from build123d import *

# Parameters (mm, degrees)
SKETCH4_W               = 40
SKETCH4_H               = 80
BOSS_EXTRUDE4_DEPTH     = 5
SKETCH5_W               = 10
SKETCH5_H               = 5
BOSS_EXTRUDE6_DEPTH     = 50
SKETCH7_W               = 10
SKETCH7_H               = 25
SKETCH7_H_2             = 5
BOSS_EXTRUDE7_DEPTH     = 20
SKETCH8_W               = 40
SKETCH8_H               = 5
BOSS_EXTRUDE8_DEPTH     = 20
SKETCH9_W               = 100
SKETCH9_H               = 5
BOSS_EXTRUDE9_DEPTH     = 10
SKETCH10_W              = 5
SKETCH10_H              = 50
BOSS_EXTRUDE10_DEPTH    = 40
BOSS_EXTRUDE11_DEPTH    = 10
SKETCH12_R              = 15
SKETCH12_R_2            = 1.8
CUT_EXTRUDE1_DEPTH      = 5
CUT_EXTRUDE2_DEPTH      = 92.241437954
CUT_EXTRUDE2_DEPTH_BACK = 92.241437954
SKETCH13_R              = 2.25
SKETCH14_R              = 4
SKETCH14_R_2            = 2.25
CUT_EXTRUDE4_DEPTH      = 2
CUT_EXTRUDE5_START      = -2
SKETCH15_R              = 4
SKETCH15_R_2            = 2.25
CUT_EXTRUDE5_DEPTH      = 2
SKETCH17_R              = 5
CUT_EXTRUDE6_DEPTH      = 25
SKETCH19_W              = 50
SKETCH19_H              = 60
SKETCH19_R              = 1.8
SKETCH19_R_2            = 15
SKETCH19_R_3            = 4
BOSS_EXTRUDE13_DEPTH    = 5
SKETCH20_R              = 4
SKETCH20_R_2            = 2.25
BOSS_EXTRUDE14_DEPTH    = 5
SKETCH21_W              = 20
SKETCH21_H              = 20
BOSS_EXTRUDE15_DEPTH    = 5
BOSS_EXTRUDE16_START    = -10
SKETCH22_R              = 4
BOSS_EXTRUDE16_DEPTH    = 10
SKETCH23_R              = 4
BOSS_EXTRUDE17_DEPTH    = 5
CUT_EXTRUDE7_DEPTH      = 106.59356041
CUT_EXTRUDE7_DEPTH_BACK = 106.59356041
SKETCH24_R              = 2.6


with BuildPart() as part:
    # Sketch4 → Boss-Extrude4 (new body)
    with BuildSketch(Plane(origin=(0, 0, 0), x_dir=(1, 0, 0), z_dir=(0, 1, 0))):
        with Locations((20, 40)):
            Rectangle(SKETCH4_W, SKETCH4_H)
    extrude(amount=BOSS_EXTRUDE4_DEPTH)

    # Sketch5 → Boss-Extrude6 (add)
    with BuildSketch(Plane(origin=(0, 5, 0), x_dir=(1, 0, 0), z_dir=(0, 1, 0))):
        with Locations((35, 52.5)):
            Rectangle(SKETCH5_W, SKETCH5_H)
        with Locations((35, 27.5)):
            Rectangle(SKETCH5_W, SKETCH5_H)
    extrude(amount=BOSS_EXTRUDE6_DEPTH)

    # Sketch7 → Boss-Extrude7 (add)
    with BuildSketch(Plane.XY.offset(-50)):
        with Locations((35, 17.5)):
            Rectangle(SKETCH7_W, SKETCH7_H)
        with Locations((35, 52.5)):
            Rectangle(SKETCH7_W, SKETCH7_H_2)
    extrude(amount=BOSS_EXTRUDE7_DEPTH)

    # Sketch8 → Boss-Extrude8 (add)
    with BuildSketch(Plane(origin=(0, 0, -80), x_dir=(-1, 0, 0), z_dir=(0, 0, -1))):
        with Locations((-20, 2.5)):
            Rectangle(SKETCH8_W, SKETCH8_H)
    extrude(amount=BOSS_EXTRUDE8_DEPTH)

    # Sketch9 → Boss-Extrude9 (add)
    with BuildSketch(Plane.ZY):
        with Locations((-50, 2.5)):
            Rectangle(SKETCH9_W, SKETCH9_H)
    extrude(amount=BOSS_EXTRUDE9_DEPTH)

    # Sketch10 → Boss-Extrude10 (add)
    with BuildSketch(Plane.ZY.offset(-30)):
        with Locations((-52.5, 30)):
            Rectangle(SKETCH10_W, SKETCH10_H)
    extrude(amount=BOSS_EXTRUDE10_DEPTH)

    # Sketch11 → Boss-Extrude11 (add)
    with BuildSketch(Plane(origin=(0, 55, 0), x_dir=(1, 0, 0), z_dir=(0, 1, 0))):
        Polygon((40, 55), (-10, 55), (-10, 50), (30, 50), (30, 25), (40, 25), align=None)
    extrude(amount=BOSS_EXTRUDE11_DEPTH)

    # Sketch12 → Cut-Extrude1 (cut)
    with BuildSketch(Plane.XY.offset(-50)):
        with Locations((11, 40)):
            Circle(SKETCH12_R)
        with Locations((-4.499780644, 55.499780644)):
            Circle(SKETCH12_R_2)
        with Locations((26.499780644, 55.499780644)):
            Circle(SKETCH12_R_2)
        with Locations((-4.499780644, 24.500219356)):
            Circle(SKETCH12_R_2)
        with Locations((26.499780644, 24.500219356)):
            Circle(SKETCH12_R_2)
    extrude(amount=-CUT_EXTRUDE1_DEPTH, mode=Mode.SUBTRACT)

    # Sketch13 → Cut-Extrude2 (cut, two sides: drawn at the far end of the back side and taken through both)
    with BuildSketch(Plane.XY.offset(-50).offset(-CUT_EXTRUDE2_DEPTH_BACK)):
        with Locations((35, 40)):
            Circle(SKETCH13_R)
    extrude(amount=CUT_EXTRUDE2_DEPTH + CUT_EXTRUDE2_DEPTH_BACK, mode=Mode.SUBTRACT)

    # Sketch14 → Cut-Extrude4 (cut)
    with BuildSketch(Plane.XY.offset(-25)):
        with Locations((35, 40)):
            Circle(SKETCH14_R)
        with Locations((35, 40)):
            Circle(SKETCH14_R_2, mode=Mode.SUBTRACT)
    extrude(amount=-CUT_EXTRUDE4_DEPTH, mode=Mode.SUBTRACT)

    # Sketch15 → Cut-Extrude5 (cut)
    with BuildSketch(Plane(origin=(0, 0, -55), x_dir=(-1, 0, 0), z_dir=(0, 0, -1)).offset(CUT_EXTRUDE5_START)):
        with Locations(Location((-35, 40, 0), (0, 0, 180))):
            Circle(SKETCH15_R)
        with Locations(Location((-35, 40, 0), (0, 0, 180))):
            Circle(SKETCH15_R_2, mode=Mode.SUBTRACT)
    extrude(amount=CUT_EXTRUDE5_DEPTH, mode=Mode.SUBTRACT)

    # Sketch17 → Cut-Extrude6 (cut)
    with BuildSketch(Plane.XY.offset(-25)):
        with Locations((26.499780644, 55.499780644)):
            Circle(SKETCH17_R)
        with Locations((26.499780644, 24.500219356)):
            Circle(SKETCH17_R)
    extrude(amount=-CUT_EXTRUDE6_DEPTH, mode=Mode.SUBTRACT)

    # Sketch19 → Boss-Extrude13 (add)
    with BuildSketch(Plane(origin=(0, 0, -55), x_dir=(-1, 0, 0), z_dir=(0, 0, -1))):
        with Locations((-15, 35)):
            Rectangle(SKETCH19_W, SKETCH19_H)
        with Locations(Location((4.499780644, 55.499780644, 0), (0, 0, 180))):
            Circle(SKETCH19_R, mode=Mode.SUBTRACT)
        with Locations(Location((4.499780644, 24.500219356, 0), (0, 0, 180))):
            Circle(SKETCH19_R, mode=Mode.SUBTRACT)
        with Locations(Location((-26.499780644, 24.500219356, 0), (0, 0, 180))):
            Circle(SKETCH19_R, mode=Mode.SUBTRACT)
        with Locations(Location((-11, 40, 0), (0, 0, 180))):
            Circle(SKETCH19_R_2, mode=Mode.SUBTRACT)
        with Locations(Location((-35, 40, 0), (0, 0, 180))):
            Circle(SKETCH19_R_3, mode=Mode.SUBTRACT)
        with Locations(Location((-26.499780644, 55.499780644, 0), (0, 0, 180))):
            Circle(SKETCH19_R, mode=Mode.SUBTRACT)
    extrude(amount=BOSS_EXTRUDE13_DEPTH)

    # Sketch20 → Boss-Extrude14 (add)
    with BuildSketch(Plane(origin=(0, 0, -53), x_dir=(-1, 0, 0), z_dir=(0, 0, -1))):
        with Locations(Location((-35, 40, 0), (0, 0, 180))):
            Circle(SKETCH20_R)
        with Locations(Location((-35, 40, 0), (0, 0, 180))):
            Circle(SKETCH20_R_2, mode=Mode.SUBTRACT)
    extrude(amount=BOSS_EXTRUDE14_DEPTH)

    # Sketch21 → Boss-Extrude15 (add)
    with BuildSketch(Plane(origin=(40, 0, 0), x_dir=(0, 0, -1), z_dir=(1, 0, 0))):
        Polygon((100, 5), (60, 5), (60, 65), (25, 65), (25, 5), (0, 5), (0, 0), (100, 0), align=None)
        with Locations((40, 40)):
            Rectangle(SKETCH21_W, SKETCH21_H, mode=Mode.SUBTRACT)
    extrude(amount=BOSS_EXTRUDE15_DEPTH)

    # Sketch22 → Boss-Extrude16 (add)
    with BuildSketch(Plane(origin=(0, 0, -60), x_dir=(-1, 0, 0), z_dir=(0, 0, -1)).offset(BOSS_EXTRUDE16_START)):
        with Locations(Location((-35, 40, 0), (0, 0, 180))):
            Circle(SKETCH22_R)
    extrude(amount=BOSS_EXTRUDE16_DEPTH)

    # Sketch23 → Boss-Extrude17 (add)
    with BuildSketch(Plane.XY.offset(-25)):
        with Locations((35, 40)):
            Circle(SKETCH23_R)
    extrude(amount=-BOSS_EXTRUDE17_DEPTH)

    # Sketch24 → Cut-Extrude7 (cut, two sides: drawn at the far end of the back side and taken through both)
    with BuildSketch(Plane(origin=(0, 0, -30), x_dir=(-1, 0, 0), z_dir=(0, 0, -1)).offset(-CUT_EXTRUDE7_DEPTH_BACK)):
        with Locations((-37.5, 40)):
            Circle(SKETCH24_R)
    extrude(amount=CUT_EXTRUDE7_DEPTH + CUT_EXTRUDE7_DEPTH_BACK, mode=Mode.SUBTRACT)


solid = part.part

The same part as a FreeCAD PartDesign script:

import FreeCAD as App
import Part
import Sketcher

V = App.Vector
Q = App.Units.Quantity


def add_polygon(sketch, points):
    """Adds a closed chain of lines whose ends are joined by coincident constraints."""
    first, n = sketch.GeometryCount, len(points)
    for a, b in zip(points, points[1:] + points[:1]):
        sketch.addGeometry(Part.LineSegment(App.Vector(*a, 0), App.Vector(*b, 0)), False)
    for i in range(n):
        sketch.addConstraint(Sketcher.Constraint("Coincident", first + i, 2, first + (i + 1) % n, 1))

doc = App.newDocument("Part")
body = doc.addObject("PartDesign::Body", "Body")

# Sketch on XZ plane
sketch1 = doc.addObject("Sketcher::SketchObject", "Sketch")
body.addObject(sketch1)
sketch1.AttachmentSupport = (doc.XZ_Plane, [""])
sketch1.MapMode = "FlatFace"
add_polygon(sketch1, [(0, -80), (0, 0), (40, 0), (40, -80)])  # lines 0-3
sketch1.addConstraint([
    Sketcher.Constraint("Vertical", 0),
    Sketcher.Constraint("Horizontal", 1),
    Sketcher.Constraint("Vertical", 2),
    Sketcher.Constraint("Horizontal", 3),
    Sketcher.Constraint("Coincident", 0, 2, -1, 1),
    Sketcher.Constraint("DistanceX", 1, 1, 1, 2, Q("40 mm")),
    Sketcher.Constraint("DistanceY", 0, 1, 0, 2, Q("80 mm")),
])
pad1 = doc.addObject("PartDesign::Pad", "Pad")
body.addObject(pad1)
pad1.Profile = sketch1
pad1.Length = 5
pad1.Reversed = True

# Sketch on XZ plane
sketch2 = doc.addObject("Sketcher::SketchObject", "Sketch001")
body.addObject(sketch2)
sketch2.AttachmentSupport = (doc.XZ_Plane, [""])
sketch2.MapMode = "FlatFace"
sketch2.AttachmentOffset = App.Placement(V(0, 0, -5), App.Rotation())
add_polygon(sketch2, [(30, -55), (30, -50), (40, -50), (40, -55)])  # lines 0-3
add_polygon(sketch2, [(30, -30), (30, -25), (40, -25), (40, -30)])  # lines 4-7
sketch2.addConstraint([
    Sketcher.Constraint("Vertical", 0),
    Sketcher.Constraint("Horizontal", 1),
    Sketcher.Constraint("Vertical", 2),
    Sketcher.Constraint("Horizontal", 3),
    Sketcher.Constraint("Vertical", 4),
    Sketcher.Constraint("Horizontal", 5),
    Sketcher.Constraint("Vertical", 6),
    Sketcher.Constraint("Horizontal", 7),
    Sketcher.Constraint("Vertical", 3, 2, 4, 2),
    Sketcher.Constraint("Vertical", 2, 2, 5, 2),
    Sketcher.Constraint("Equal", 2, 4),
    Sketcher.Constraint("DistanceX", 1, 1, 1, 2, Q("10 mm")),
    Sketcher.Constraint("DistanceY", 0, 1, 0, 2, Q("5 mm")),
    Sketcher.Constraint("DistanceX", -1, 1, 0, 2, Q("30 mm")),
    Sketcher.Constraint("DistanceY", 0, 2, -1, 1, Q("50 mm")),
    Sketcher.Constraint("DistanceY", 4, 2, -1, 1, Q("25 mm")),
])
pad2 = doc.addObject("PartDesign::Pad", "Pad001")
body.addObject(pad2)
pad2.Profile = sketch2
pad2.Length = 50
pad2.Reversed = True

# Sketch on XY plane
sketch3 = doc.addObject("Sketcher::SketchObject", "Sketch002")
body.addObject(sketch3)
sketch3.AttachmentSupport = (doc.XY_Plane, [""])
sketch3.MapMode = "FlatFace"
sketch3.AttachmentOffset = App.Placement(V(0, 0, -50), App.Rotation())
add_polygon(sketch3, [(30, 30), (30, 5), (40, 5), (40, 30)])  # lines 0-3
add_polygon(sketch3, [(30, 55), (30, 50), (40, 50), (40, 55)])  # lines 4-7
sketch3.addConstraint([
    Sketcher.Constraint("Vertical", 0),
    Sketcher.Constraint("Horizontal", 1),
    Sketcher.Constraint("Vertical", 2),
    Sketcher.Constraint("Horizontal", 3),
    Sketcher.Constraint("Vertical", 4),
    Sketcher.Constraint("Horizontal", 5),
    Sketcher.Constraint("Vertical", 6),
    Sketcher.Constraint("Horizontal", 7),
    Sketcher.Constraint("Vertical", 3, 2, 4, 2),
    Sketcher.Constraint("Vertical", 2, 2, 5, 2),
    Sketcher.Constraint("DistanceX", 1, 1, 1, 2, Q("10 mm")),
    Sketcher.Constraint("DistanceY", 0, 2, 0, 1, Q("25 mm")),
    Sketcher.Constraint("DistanceY", 4, 2, 4, 1, Q("5 mm")),
    Sketcher.Constraint("DistanceX", -1, 1, 0, 2, Q("30 mm")),
    Sketcher.Constraint("DistanceY", -1, 1, 0, 2, Q("5 mm")),
    Sketcher.Constraint("DistanceY", -1, 1, 4, 2, Q("50 mm")),
])
pad3 = doc.addObject("PartDesign::Pad", "Pad002")
body.addObject(pad3)
pad3.Profile = sketch3
pad3.Length = 20

# Sketch on XY plane
sketch4 = doc.addObject("Sketcher::SketchObject", "Sketch003")
body.addObject(sketch4)
sketch4.AttachmentSupport = (doc.XY_Plane, [""])
sketch4.MapMode = "FlatFace"
sketch4.AttachmentOffset = App.Placement(V(0, 0, -80), App.Rotation())
add_polygon(sketch4, [(40, 5), (40, 0), (0, 0), (0, 5)])  # lines 0-3
sketch4.addConstraint([
    Sketcher.Constraint("Vertical", 0),
    Sketcher.Constraint("Horizontal", 1),
    Sketcher.Constraint("Vertical", 2),
    Sketcher.Constraint("Horizontal", 3),
    Sketcher.Constraint("Coincident", 1, 2, -1, 1),
    Sketcher.Constraint("DistanceX", 1, 2, 1, 1, Q("40 mm")),
    Sketcher.Constraint("DistanceY", 0, 2, 0, 1, Q("5 mm")),
])
pad4 = doc.addObject("PartDesign::Pad", "Pad003")
body.addObject(pad4)
pad4.Profile = sketch4
pad4.Length = 20
pad4.Reversed = True

# Sketch on YZ plane
sketch5 = doc.addObject("Sketcher::SketchObject", "Sketch004")
body.addObject(sketch5)
sketch5.AttachmentSupport = (doc.YZ_Plane, [""])
sketch5.MapMode = "FlatFace"
add_polygon(sketch5, [(5, -100), (0, -100), (0, 0), (5, 0)])  # lines 0-3
sketch5.addConstraint([
    Sketcher.Constraint("Horizontal", 0),
    Sketcher.Constraint("Vertical", 1),
    Sketcher.Constraint("Horizontal", 2),
    Sketcher.Constraint("Vertical", 3),
    Sketcher.Constraint("Coincident", 1, 2, -1, 1),
    Sketcher.Constraint("DistanceX", 0, 2, 0, 1, Q("5 mm")),
    Sketcher.Constraint("DistanceY", 1, 1, 1, 2, Q("100 mm")),
])
pad5 = doc.addObject("PartDesign::Pad", "Pad004")
body.addObject(pad5)
pad5.Profile = sketch5
pad5.Length = 10
pad5.Reversed = True

# Sketch on YZ plane
sketch6 = doc.addObject("Sketcher::SketchObject", "Sketch005")
body.addObject(sketch6)
sketch6.AttachmentSupport = (doc.YZ_Plane, [""])
sketch6.MapMode = "FlatFace"
sketch6.AttachmentOffset = App.Placement(V(0, 0, 30), App.Rotation())
add_polygon(sketch6, [(55, -55), (5, -55), (5, -50), (55, -50)])  # lines 0-3
sketch6.addConstraint([
    Sketcher.Constraint("Horizontal", 0),
    Sketcher.Constraint("Vertical", 1),
    Sketcher.Constraint("Horizontal", 2),
    Sketcher.Constraint("Vertical", 3),
    Sketcher.Constraint("DistanceX", 0, 2, 0, 1, Q("50 mm")),
    Sketcher.Constraint("DistanceY", 1, 1, 1, 2, Q("5 mm")),
    Sketcher.Constraint("DistanceX", -1, 1, 0, 2, Q("5 mm")),
    Sketcher.Constraint("DistanceY", 0, 2, -1, 1, Q("55 mm")),
])
pad6 = doc.addObject("PartDesign::Pad", "Pad005")
body.addObject(pad6)
pad6.Profile = sketch6
pad6.Length = 40
pad6.Reversed = True

# Sketch on XZ plane
sketch7 = doc.addObject("Sketcher::SketchObject", "Sketch006")
body.addObject(sketch7)
sketch7.AttachmentSupport = (doc.XZ_Plane, [""])
sketch7.MapMode = "FlatFace"
sketch7.AttachmentOffset = App.Placement(V(0, 0, -55), App.Rotation())
add_polygon(sketch7, [(40, -55), (-10, -55), (-10, -50), (30, -50), (30, -25), (40, -25)])  # lines 0-5
sketch7.addConstraint([
    Sketcher.Constraint("Horizontal", 0),
    Sketcher.Constraint("Vertical", 1),
    Sketcher.Constraint("Horizontal", 2),
    Sketcher.Constraint("Vertical", 3),
    Sketcher.Constraint("Horizontal", 4),
    Sketcher.Constraint("Vertical", 5),
    Sketcher.Constraint("DistanceX", 0, 2, 0, 1, Q("50 mm")),
    Sketcher.Constraint("DistanceX", 2, 1, 2, 2, Q("40 mm")),
    Sketcher.Constraint("DistanceY", 1, 1, 1, 2, Q("5 mm")),
    Sketcher.Constraint("DistanceY", 3, 1, 3, 2, Q("25 mm")),
    Sketcher.Constraint("DistanceX", 0, 2, -1, 1, Q("10 mm")),
    Sketcher.Constraint("DistanceY", 0, 2, -1, 1, Q("55 mm")),
])
pad7 = doc.addObject("PartDesign::Pad", "Pad006")
body.addObject(pad7)
pad7.Profile = sketch7
pad7.Length = 10
pad7.Reversed = True

# Sketch on XY plane
sketch8 = doc.addObject("Sketcher::SketchObject", "Sketch007")
body.addObject(sketch8)
sketch8.AttachmentSupport = (doc.XY_Plane, [""])
sketch8.MapMode = "FlatFace"
sketch8.AttachmentOffset = App.Placement(V(0, 0, -50), App.Rotation())
sketch8.addGeometry([
    Part.Circle(V(11, 40, 0), V(0, 0, 1), 15),  # 0
    Part.Circle(V(-4.499781, 55.499781, 0), V(0, 0, 1), 1.8),  # 1
    Part.Circle(V(26.499781, 55.499781, 0), V(0, 0, 1), 1.8),  # 2
    Part.Circle(V(-4.499781, 24.500219, 0), V(0, 0, 1), 1.8),  # 3
    Part.Circle(V(26.499781, 24.500219, 0), V(0, 0, 1), 1.8),  # 4
], False)
sketch8.addConstraint([
    Sketcher.Constraint("Equal", 1, 2),
    Sketcher.Constraint("Equal", 2, 3),
    Sketcher.Constraint("Equal", 3, 4),
    Sketcher.Constraint("Horizontal", 1, 3, 2, 3),
    Sketcher.Constraint("Horizontal", 3, 3, 4, 3),
    Sketcher.Constraint("Vertical", 1, 3, 3, 3),
    Sketcher.Constraint("Vertical", 2, 3, 4, 3),
    Sketcher.Constraint("Diameter", 0, Q("30 mm")),
    Sketcher.Constraint("Diameter", 1, Q("3.6 mm")),
    Sketcher.Constraint("DistanceX", -1, 1, 0, 3, Q("11 mm")),
    Sketcher.Constraint("DistanceY", -1, 1, 0, 3, Q("40 mm")),
    Sketcher.Constraint("DistanceX", 1, 3, -1, 1, Q("4.499781 mm")),
    Sketcher.Constraint("DistanceY", -1, 1, 1, 3, Q("55.499781 mm")),
    Sketcher.Constraint("DistanceX", -1, 1, 2, 3, Q("26.499781 mm")),
    Sketcher.Constraint("DistanceY", -1, 1, 3, 3, Q("24.500219 mm")),
])
pocket1 = doc.addObject("PartDesign::Pocket", "Pocket")
body.addObject(pocket1)
pocket1.Profile = sketch8
pocket1.Length = 5

# Sketch on XY plane
sketch9 = doc.addObject("Sketcher::SketchObject", "Sketch008")
body.addObject(sketch9)
sketch9.AttachmentSupport = (doc.XY_Plane, [""])
sketch9.MapMode = "FlatFace"
sketch9.AttachmentOffset = App.Placement(V(0, 0, -50), App.Rotation())
sketch9.addGeometry(Part.Circle(V(35, 40, 0), V(0, 0, 1), 2.25), False)
sketch9.addConstraint([
    Sketcher.Constraint("Diameter", 0, Q("4.5 mm")),
    Sketcher.Constraint("DistanceX", -1, 1, 0, 3, Q("35 mm")),
    Sketcher.Constraint("DistanceY", -1, 1, 0, 3, Q("40 mm")),
])
pocket2 = doc.addObject("PartDesign::Pocket", "Pocket001")
body.addObject(pocket2)
pocket2.Profile = sketch9
pocket2.Type = "ThroughAll"
pocket2.Midplane = True

# Sketch on XY plane
sketch10 = doc.addObject("Sketcher::SketchObject", "Sketch009")
body.addObject(sketch10)
sketch10.AttachmentSupport = (doc.XY_Plane, [""])
sketch10.MapMode = "FlatFace"
sketch10.AttachmentOffset = App.Placement(V(0, 0, -25), App.Rotation())
sketch10.addGeometry([
    Part.Circle(V(35, 40, 0), V(0, 0, 1), 4),
    Part.Circle(V(35, 40, 0), V(0, 0, 1), 2.25),
], False)
sketch10.addConstraint([
    Sketcher.Constraint("Coincident", 1, 3, 0, 3),
    Sketcher.Constraint("Diameter", 0, Q("8 mm")),
    Sketcher.Constraint("Diameter", 1, Q("4.5 mm")),
    Sketcher.Constraint("DistanceX", -1, 1, 0, 3, Q("35 mm")),
    Sketcher.Constraint("DistanceY", -1, 1, 0, 3, Q("40 mm")),
])
pocket3 = doc.addObject("PartDesign::Pocket", "Pocket002")
body.addObject(pocket3)
pocket3.Profile = sketch10
pocket3.Length = 2

# Sketch on XY plane
sketch11 = doc.addObject("Sketcher::SketchObject", "Sketch010")
body.addObject(sketch11)
sketch11.AttachmentSupport = (doc.XY_Plane, [""])
sketch11.MapMode = "FlatFace"
sketch11.AttachmentOffset = App.Placement(V(0, 0, -53), App.Rotation())
sketch11.addGeometry([
    Part.Circle(V(35, 40, 0), V(0, 0, 1), 4),
    Part.Circle(V(35, 40, 0), V(0, 0, 1), 2.25),
], False)
sketch11.addConstraint([
    Sketcher.Constraint("Coincident", 1, 3, 0, 3),
    Sketcher.Constraint("Diameter", 0, Q("8 mm")),
    Sketcher.Constraint("Diameter", 1, Q("4.5 mm")),
    Sketcher.Constraint("DistanceX", -1, 1, 0, 3, Q("35 mm")),
    Sketcher.Constraint("DistanceY", -1, 1, 0, 3, Q("40 mm")),
])
pocket4 = doc.addObject("PartDesign::Pocket", "Pocket003")
body.addObject(pocket4)
pocket4.Profile = sketch11
pocket4.Length = 2

# Sketch on XY plane
sketch12 = doc.addObject("Sketcher::SketchObject", "Sketch011")
body.addObject(sketch12)
sketch12.AttachmentSupport = (doc.XY_Plane, [""])
sketch12.MapMode = "FlatFace"
sketch12.AttachmentOffset = App.Placement(V(0, 0, -25), App.Rotation())
sketch12.addGeometry([
    Part.Circle(V(26.499781, 55.499781, 0), V(0, 0, 1), 5),
    Part.Circle(V(26.499781, 24.500219, 0), V(0, 0, 1), 5),
], False)
sketch12.addConstraint([
    Sketcher.Constraint("Equal", 0, 1),
    Sketcher.Constraint("Vertical", 0, 3, 1, 3),
    Sketcher.Constraint("Diameter", 0, Q("10 mm")),
    Sketcher.Constraint("DistanceX", -1, 1, 0, 3, Q("26.499781 mm")),
    Sketcher.Constraint("DistanceY", -1, 1, 0, 3, Q("55.499781 mm")),
    Sketcher.Constraint("DistanceY", -1, 1, 1, 3, Q("24.500219 mm")),
])
pocket5 = doc.addObject("PartDesign::Pocket", "Pocket004")
body.addObject(pocket5)
pocket5.Profile = sketch12
pocket5.Length = 25

# Sketch on XY plane
sketch13 = doc.addObject("Sketcher::SketchObject", "Sketch012")
body.addObject(sketch13)
sketch13.AttachmentSupport = (doc.XY_Plane, [""])
sketch13.MapMode = "FlatFace"
sketch13.AttachmentOffset = App.Placement(V(0, 0, -55), App.Rotation())
add_polygon(sketch13, [(40, 65), (40, 5), (-10, 5), (-10, 65)])  # lines 0-3
sketch13.addGeometry(Part.Circle(V(26.499781, 24.500219, 0), V(0, 0, 1), 1.8), False)  # 4
sketch13.addGeometry(Part.Circle(V(-4.499781, 24.500219, 0), V(0, 0, 1), 1.8), False)  # 5
sketch13.addGeometry(Part.Circle(V(35, 40, 0), V(0, 0, 1), 4), False)  # 6
sketch13.addGeometry(Part.Circle(V(26.499781, 55.499781, 0), V(0, 0, 1), 1.8), False)  # 7
sketch13.addGeometry(Part.Circle(V(11, 40, 0), V(0, 0, 1), 15), False)  # 8
sketch13.addGeometry(Part.Circle(V(-4.499781, 55.499781, 0), V(0, 0, 1), 1.8), False)  # 9
sketch13.addConstraint([
    Sketcher.Constraint("Vertical", 0),
    Sketcher.Constraint("Horizontal", 1),
    Sketcher.Constraint("Vertical", 2),
    Sketcher.Constraint("Horizontal", 3),
    Sketcher.Constraint("Equal", 4, 5),
    Sketcher.Constraint("Equal", 5, 7),
    Sketcher.Constraint("Equal", 7, 9),
    Sketcher.Constraint("Horizontal", 4, 3, 5, 3),
    Sketcher.Constraint("Horizontal", 6, 3, 8, 3),
    Sketcher.Constraint("Horizontal", 7, 3, 9, 3),
    Sketcher.Constraint("Vertical", 4, 3, 7, 3),
    Sketcher.Constraint("Vertical", 5, 3, 9, 3),
    Sketcher.Constraint("Diameter", 6, Q("8 mm")),
    Sketcher.Constraint("Diameter", 8, Q("30 mm")),
    Sketcher.Constraint("Diameter", 4, Q("3.6 mm")),
    Sketcher.Constraint("DistanceX", 1, 2, 1, 1, Q("50 mm")),
    Sketcher.Constraint("DistanceY", 0, 2, 0, 1, Q("60 mm")),
    Sketcher.Constraint("DistanceX", -1, 1, 6, 3, Q("35 mm")),
    Sketcher.Constraint("DistanceY", -1, 1, 6, 3, Q("40 mm")),
    Sketcher.Constraint("DistanceX", -1, 1, 8, 3, Q("11 mm")),
    Sketcher.Constraint("DistanceX", -1, 1, 0, 2, Q("40 mm")),
    Sketcher.Constraint("DistanceY", -1, 1, 0, 2, Q("5 mm")),
    Sketcher.Constraint("DistanceX", -1, 1, 4, 3, Q("26.499781 mm")),
    Sketcher.Constraint("DistanceY", -1, 1, 4, 3, Q("24.500219 mm")),
    Sketcher.Constraint("DistanceX", 5, 3, -1, 1, Q("4.499781 mm")),
    Sketcher.Constraint("DistanceY", -1, 1, 7, 3, Q("55.499781 mm")),
])
pad8 = doc.addObject("PartDesign::Pad", "Pad007")
body.addObject(pad8)
pad8.Profile = sketch13
pad8.Length = 5
pad8.Reversed = True

# Sketch on XY plane
sketch14 = doc.addObject("Sketcher::SketchObject", "Sketch013")
body.addObject(sketch14)
sketch14.AttachmentSupport = (doc.XY_Plane, [""])
sketch14.MapMode = "FlatFace"
sketch14.AttachmentOffset = App.Placement(V(0, 0, -53), App.Rotation())
sketch14.addGeometry([
    Part.Circle(V(35, 40, 0), V(0, 0, 1), 4),
    Part.Circle(V(35, 40, 0), V(0, 0, 1), 2.25),
], False)
sketch14.addConstraint([
    Sketcher.Constraint("Coincident", 1, 3, 0, 3),
    Sketcher.Constraint("Diameter", 0, Q("8 mm")),
    Sketcher.Constraint("Diameter", 1, Q("4.5 mm")),
    Sketcher.Constraint("DistanceX", -1, 1, 0, 3, Q("35 mm")),
    Sketcher.Constraint("DistanceY", -1, 1, 0, 3, Q("40 mm")),
])
pad9 = doc.addObject("PartDesign::Pad", "Pad008")
body.addObject(pad9)
pad9.Profile = sketch14
pad9.Length = 5
pad9.Reversed = True

# Sketch on YZ plane
sketch15 = doc.addObject("Sketcher::SketchObject", "Sketch014")
body.addObject(sketch15)
sketch15.AttachmentSupport = (doc.YZ_Plane, [""])
sketch15.MapMode = "FlatFace"
sketch15.AttachmentOffset = App.Placement(V(0, 0, 40), App.Rotation())
add_polygon(sketch15, [(5, -100), (5, -60), (65, -60), (65, -25), (5, -25), (5, 0), (0, 0), (0, -100)])  # lines 0-7
add_polygon(sketch15, [(30, -50), (30, -30), (50, -30), (50, -50)])  # lines 8-11
sketch15.addConstraint([
    Sketcher.Constraint("Vertical", 0),
    Sketcher.Constraint("Horizontal", 1),
    Sketcher.Constraint("Vertical", 2),
    Sketcher.Constraint("Horizontal", 3),
    Sketcher.Constraint("Vertical", 4),
    Sketcher.Constraint("Horizontal", 5),
    Sketcher.Constraint("Vertical", 6),
    Sketcher.Constraint("Horizontal", 7),
    Sketcher.Constraint("Vertical", 8),
    Sketcher.Constraint("Horizontal", 9),
    Sketcher.Constraint("Vertical", 10),
    Sketcher.Constraint("Horizontal", 11),
    Sketcher.Constraint("Coincident", 5, 2, -1, 1),
    Sketcher.Constraint("Vertical", 0, 2, 3, 2),
    Sketcher.Constraint("Equal", 11, 8),
    Sketcher.Constraint("DistanceX", 1, 1, 1, 2, Q("60 mm")),
    Sketcher.Constraint("DistanceX", 5, 2, 5, 1, Q("5 mm")),
    Sketcher.Constraint("DistanceX", 9, 1, 9, 2, Q("20 mm")),
    Sketcher.Constraint("DistanceY", 0, 1, 0, 2, Q("40 mm")),
    Sketcher.Constraint("DistanceY", 2, 1, 2, 2, Q("35 mm")),
    Sketcher.Constraint("DistanceY", 4, 1, 4, 2, Q("25 mm")),
    Sketcher.Constraint("DistanceX", -1, 1, 8, 2, Q("30 mm")),
    Sketcher.Constraint("DistanceY", 8, 2, -1, 1, Q("30 mm")),
])
pad10 = doc.addObject("PartDesign::Pad", "Pad009")
body.addObject(pad10)
pad10.Profile = sketch15
pad10.Length = 5

# Sketch on XY plane
sketch16 = doc.addObject("Sketcher::SketchObject", "Sketch015")
body.addObject(sketch16)
sketch16.AttachmentSupport = (doc.XY_Plane, [""])
sketch16.MapMode = "FlatFace"
sketch16.AttachmentOffset = App.Placement(V(0, 0, -50), App.Rotation())
sketch16.addGeometry(Part.Circle(V(35, 40, 0), V(0, 0, 1), 4), False)
sketch16.addConstraint([
    Sketcher.Constraint("Diameter", 0, Q("8 mm")),
    Sketcher.Constraint("DistanceX", -1, 1, 0, 3, Q("35 mm")),
    Sketcher.Constraint("DistanceY", -1, 1, 0, 3, Q("40 mm")),
])
pad11 = doc.addObject("PartDesign::Pad", "Pad010")
body.addObject(pad11)
pad11.Profile = sketch16
pad11.Length = 10
pad11.Reversed = True

# Sketch on XY plane
sketch17 = doc.addObject("Sketcher::SketchObject", "Sketch016")
body.addObject(sketch17)
sketch17.AttachmentSupport = (doc.XY_Plane, [""])
sketch17.MapMode = "FlatFace"
sketch17.AttachmentOffset = App.Placement(V(0, 0, -25), App.Rotation())
sketch17.addGeometry(Part.Circle(V(35, 40, 0), V(0, 0, 1), 4), False)
sketch17.addConstraint([
    Sketcher.Constraint("Diameter", 0, Q("8 mm")),
    Sketcher.Constraint("DistanceX", -1, 1, 0, 3, Q("35 mm")),
    Sketcher.Constraint("DistanceY", -1, 1, 0, 3, Q("40 mm")),
])
pad12 = doc.addObject("PartDesign::Pad", "Pad011")
body.addObject(pad12)
pad12.Profile = sketch17
pad12.Length = 5
pad12.Reversed = True

# Sketch on XY plane
sketch18 = doc.addObject("Sketcher::SketchObject", "Sketch017")
body.addObject(sketch18)
sketch18.AttachmentSupport = (doc.XY_Plane, [""])
sketch18.MapMode = "FlatFace"
sketch18.AttachmentOffset = App.Placement(V(0, 0, -30), App.Rotation())
sketch18.addGeometry(Part.Circle(V(37.5, 40, 0), V(0, 0, 1), 2.6), False)
sketch18.addConstraint([
    Sketcher.Constraint("Diameter", 0, Q("5.2 mm")),
    Sketcher.Constraint("DistanceY", -1, 1, 0, 3, Q("40 mm")),
    Sketcher.Constraint("DistanceX", -1, 1, 0, 3, Q("37.5 mm")),
])
pocket6 = doc.addObject("PartDesign::Pocket", "Pocket005")
body.addObject(pocket6)
pocket6.Profile = sketch18
pocket6.Type = "ThroughAll"
pocket6.Midplane = True

doc.recompute()
